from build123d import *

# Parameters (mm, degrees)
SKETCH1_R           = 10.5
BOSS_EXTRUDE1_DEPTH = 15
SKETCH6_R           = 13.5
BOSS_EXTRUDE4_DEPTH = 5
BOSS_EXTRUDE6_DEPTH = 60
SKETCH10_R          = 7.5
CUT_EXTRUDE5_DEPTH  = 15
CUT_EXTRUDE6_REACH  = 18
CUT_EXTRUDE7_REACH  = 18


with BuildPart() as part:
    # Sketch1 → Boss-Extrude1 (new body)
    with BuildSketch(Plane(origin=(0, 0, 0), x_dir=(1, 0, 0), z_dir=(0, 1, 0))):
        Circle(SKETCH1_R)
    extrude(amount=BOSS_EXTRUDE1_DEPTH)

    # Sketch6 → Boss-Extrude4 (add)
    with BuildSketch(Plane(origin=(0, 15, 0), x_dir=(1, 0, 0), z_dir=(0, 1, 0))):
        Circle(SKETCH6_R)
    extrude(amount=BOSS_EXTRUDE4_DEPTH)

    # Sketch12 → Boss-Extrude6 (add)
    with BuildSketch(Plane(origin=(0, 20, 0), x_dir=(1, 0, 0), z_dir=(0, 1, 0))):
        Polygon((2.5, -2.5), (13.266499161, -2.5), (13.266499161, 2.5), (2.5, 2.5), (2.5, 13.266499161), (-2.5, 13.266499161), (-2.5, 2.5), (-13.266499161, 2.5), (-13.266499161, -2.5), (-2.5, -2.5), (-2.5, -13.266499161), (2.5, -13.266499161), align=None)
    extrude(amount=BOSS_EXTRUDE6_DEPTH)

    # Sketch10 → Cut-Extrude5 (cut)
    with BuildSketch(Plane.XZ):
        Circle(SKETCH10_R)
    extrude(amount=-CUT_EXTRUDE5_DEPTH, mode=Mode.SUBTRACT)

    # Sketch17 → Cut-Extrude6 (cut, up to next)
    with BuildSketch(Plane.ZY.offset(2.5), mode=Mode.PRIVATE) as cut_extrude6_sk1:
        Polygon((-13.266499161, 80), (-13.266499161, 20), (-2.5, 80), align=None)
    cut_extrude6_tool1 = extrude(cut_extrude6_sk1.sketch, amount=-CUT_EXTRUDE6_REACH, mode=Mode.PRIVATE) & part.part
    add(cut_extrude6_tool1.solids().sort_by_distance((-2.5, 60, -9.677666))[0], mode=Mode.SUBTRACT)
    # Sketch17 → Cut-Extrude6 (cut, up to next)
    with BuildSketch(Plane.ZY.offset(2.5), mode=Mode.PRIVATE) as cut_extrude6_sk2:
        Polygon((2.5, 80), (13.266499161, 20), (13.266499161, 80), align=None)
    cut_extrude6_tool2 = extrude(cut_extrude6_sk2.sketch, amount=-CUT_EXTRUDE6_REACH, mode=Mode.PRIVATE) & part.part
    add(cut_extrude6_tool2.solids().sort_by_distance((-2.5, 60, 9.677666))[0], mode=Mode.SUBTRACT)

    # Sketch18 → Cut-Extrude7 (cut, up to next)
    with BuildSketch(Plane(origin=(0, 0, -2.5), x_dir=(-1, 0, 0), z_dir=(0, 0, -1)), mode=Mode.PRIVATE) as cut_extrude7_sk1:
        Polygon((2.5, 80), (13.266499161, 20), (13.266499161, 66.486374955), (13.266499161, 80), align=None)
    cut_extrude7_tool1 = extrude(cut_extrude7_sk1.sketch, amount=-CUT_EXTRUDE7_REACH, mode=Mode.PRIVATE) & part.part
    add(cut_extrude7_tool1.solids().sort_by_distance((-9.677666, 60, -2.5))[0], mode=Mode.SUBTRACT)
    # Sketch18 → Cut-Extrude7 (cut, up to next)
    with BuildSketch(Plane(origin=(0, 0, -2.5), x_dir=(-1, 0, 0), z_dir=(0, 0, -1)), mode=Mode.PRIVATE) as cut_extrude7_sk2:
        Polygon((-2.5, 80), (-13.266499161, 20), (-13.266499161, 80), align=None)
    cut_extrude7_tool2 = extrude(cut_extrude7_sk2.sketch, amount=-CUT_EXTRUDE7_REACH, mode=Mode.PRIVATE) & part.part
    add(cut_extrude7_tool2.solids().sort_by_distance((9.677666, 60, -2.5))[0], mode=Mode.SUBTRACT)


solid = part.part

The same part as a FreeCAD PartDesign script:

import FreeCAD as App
import Part
import Sketcher
from FreeCAD import Vector


def add_polygon(sketch, points):
    """Adds a closed chain of lines whose ends are joined by coincident constraints."""
    first, n = sketch.GeometryCount, len(points)
    for a, b in zip(points, points[1:] + points[:1]):
        sketch.addGeometry(Part.LineSegment(App.Vector(*a, 0), App.Vector(*b, 0)), False)
    for i in range(n):
        sketch.addConstraint(Sketcher.Constraint("Coincident", first + i, 2, first + (i + 1) % n, 1))

doc = App.newDocument("Part")
params = doc.addObject("Spreadsheet::Sheet", "Params")
for row, (alias, value) in enumerate([
    ("sketch1_diameter", "21 mm"),
    ("pad1_length", "15 mm"),
    ("sketch2_diameter", "27 mm"),
    ("pad2_length", "5 mm"),
    ("sketch3_width", "5 mm"),
    ("pad3_length", "60 mm"),
    ("sketch4_diameter", "15 mm"),
    ("pocket1_length", "15 mm"),
    ("sketch5_width", "60 mm"),
    ("sketch6_width", "60 mm"),
    ("sketch7_height", "60 mm"),
    ("sketch8_height", "60 mm"),
], start=1):
    params.set(f"A{row}", alias)
    params.set(f"B{row}", "=" + value)
    params.setAlias(f"B{row}", alias)

body = doc.addObject("PartDesign::Body", "Body")

# Sketch on XZ plane
sketch1 = body.newObject("Sketcher::SketchObject", "Sketch")
sketch1.AttachmentSupport = (doc.getObject("XZ_Plane"), [""])
sketch1.MapMode = "FlatFace"
sketch1.addGeometry(Part.Circle(Vector(0, 0, 0), Vector(0, 0, 1), 10.5), False)
sketch1.addConstraint(Sketcher.Constraint("Coincident", 0, 3, -1, 1))
sketch1.addConstraint(Sketcher.Constraint("Diameter", 0, 21.0))
sketch1.setExpression("Constraints[1]", "Params.sketch1_diameter")
pad1 = body.newObject("PartDesign::Pad", "Pad")
pad1.Profile = sketch1
pad1.setExpression("Length", "Params.pad1_length")
pad1.Reversed = True

# Sketch on XZ plane
sketch2 = body.newObject("Sketcher::SketchObject", "Sketch001")
sketch2.AttachmentSupport = (doc.getObject("XZ_Plane"), [""])
sketch2.MapMode = "FlatFace"
sketch2.AttachmentOffset = App.Placement(Vector(0, 0, -15), App.Rotation())
sketch2.addGeometry(Part.Circle(Vector(0, 0, 0), Vector(0, 0, 1), 13.5), False)
sketch2.addConstraint(Sketcher.Constraint("Coincident", 0, 3, -1, 1))
sketch2.addConstraint(Sketcher.Constraint("Diameter", 0, 27.0))
sketch2.setExpression("Constraints[1]", "Params.sketch2_diameter")
pad2 = body.newObject("PartDesign::Pad", "Pad001")
pad2.Profile = sketch2
pad2.setExpression("Length", "Params.pad2_length")
pad2.Reversed = True

# Sketch on XZ plane
sketch3 = body.newObject("Sketcher::SketchObject", "Sketch002")
sketch3.AttachmentSupport = (doc.getObject("XZ_Plane"), [""])
sketch3.MapMode = "FlatFace"
sketch3.AttachmentOffset = App.Placement(Vector(0, 0, -20), App.Rotation())
add_polygon(sketch3, [(2.5, 2.5), (13.266499, 2.5), (13.266499, -2.5), (2.5, -2.5), (2.5, -13.266499), (-2.5, -13.266499), (-2.5, -2.5), (-13.266499, -2.5), (-13.266499, 2.5), (-2.5, 2.5), (-2.5, 13.266499), (2.5, 13.266499)])  # lines 0-11
sketch3.addConstraint(Sketcher.Constraint("Horizontal", 0))
sketch3.addConstraint(Sketcher.Constraint("Vertical", 1))
sketch3.addConstraint(Sketcher.Constraint("Horizontal", 2))
sketch3.addConstraint(Sketcher.Constraint("Vertical", 3))
sketch3.addConstraint(Sketcher.Constraint("Horizontal", 4))
sketch3.addConstraint(Sketcher.Constraint("Vertical", 5))
sketch3.addConstraint(Sketcher.Constraint("Horizontal", 6))
sketch3.addConstraint(Sketcher.Constraint("Vertical", 7))
sketch3.addConstraint(Sketcher.Constraint("Horizontal", 8))
sketch3.addConstraint(Sketcher.Constraint("Vertical", 9))
sketch3.addConstraint(Sketcher.Constraint("Horizontal", 10))
sketch3.addConstraint(Sketcher.Constraint("Vertical", 11))
sketch3.addConstraint(Sketcher.Constraint("Symmetric", 0, 2, 6, 2, -1, 1))
sketch3.addConstraint(Sketcher.Constraint("Symmetric", 2, 2, 8, 2, -1, 1))
sketch3.addConstraint(Sketcher.Constraint("Symmetric", 4, 2, 10, 2, -1, 1))
sketch3.addConstraint(Sketcher.Constraint("Symmetric", 2, 2, 5, 2, -2))
sketch3.addConstraint(Sketcher.Constraint("Equal", 10, 1))
sketch3.addConstraint(Sketcher.Constraint("Equal", 8, 3))
sketch3.addConstraint(Sketcher.Constraint("DistanceX", 4, 2, 4, 1, 5.0))
sketch3.addConstraint(Sketcher.Constraint("DistanceX", 0, 1, 0, 2, 10.766499))
sketch3.setExpression("Constraints[30]", "Params.sketch3_width")
pad3 = body.newObject("PartDesign::Pad", "Pad002")
pad3.Profile = sketch3
pad3.setExpression("Length", "Params.pad3_length")
pad3.Reversed = True

# Sketch on XZ plane
sketch4 = body.newObject("Sketcher::SketchObject", "Sketch003")
sketch4.AttachmentSupport = (doc.getObject("XZ_Plane"), [""])
sketch4.MapMode = "FlatFace"
sketch4.addGeometry(Part.Circle(Vector(0, 0, 0), Vector(0, 0, 1), 7.5), False)
sketch4.addConstraint(Sketcher.Constraint("Coincident", 0, 3, -1, 1))
sketch4.addConstraint(Sketcher.Constraint("Diameter", 0, 15.0))
sketch4.setExpression("Constraints[1]", "Params.sketch4_diameter")
pocket1 = body.newObject("PartDesign::Pocket", "Pocket")
pocket1.Profile = sketch4
pocket1.setExpression("Length", "Params.pocket1_length")

# Sketch on YZ plane
sketch5 = body.newObject("Sketcher::SketchObject", "Sketch004")
sketch5.AttachmentSupport = (doc.getObject("YZ_Plane"), [""])
sketch5.MapMode = "FlatFace"
sketch5.AttachmentOffset = App.Placement(Vector(0, 0, -2.5), App.Rotation())
add_polygon(sketch5, [(80, -13.266499), (20, -13.266499), (80, -2.5)])  # lines 0-2
sketch5.addConstraint(Sketcher.Constraint("Horizontal", 0))
sketch5.addConstraint(Sketcher.Constraint("Vertical", 2))
sketch5.addConstraint(Sketcher.Constraint("DistanceX", 0, 2, 0, 1, 60.0))
sketch5.addConstraint(Sketcher.Constraint("DistanceX", -1, 1, 0, 2, 20.0))
sketch5.addConstraint(Sketcher.Constraint("DistanceY", 1, 2, -1, 1, 2.5))
sketch5.addConstraint(Sketcher.Constraint("DistanceY", 2, 2, 2, 1, 10.766499))
sketch5.setExpression("Constraints[5]", "Params.sketch5_width")
pocket2 = body.newObject("PartDesign::Pocket", "Pocket001")
pocket2.Profile = sketch5
pocket2.Type = "UpToFirst"
pocket2.Reversed = True

# Sketch on YZ plane
sketch6 = body.newObject("Sketcher::SketchObject", "Sketch005")
sketch6.AttachmentSupport = (doc.getObject("YZ_Plane"), [""])
sketch6.MapMode = "FlatFace"
sketch6.AttachmentOffset = App.Placement(Vector(0, 0, -2.5), App.Rotation())
add_polygon(sketch6, [(80, 2.5), (20, 13.266499), (80, 13.266499)])  # lines 0-2
sketch6.addConstraint(Sketcher.Constraint("Horizontal", 1))
sketch6.addConstraint(Sketcher.Constraint("Vertical", 2))
sketch6.addConstraint(Sketcher.Constraint("DistanceX", 1, 1, 1, 2, 60.0))
sketch6.addConstraint(Sketcher.Constraint("DistanceX", -1, 1, 0, 2, 20.0))
sketch6.addConstraint(Sketcher.Constraint("DistanceY", -1, 1, 2, 2, 2.5))
sketch6.addConstraint(Sketcher.Constraint("DistanceY", 2, 2, 2, 1, 10.766499))
sketch6.setExpression("Constraints[5]", "Params.sketch6_width")
pocket3 = body.newObject("PartDesign::Pocket", "Pocket002")
pocket3.Profile = sketch6
pocket3.Type = "UpToFirst"
pocket3.Reversed = True

# Sketch on XY plane
sketch7 = body.newObject("Sketcher::SketchObject", "Sketch006")
sketch7.AttachmentSupport = (doc.getObject("XY_Plane"), [""])
sketch7.MapMode = "FlatFace"
sketch7.AttachmentOffset = App.Placement(Vector(0, 0, -2.5), App.Rotation())
add_polygon(sketch7, [(-2.5, 80), (-13.266499, 20), (-13.266499, 80)])  # lines 0-2
sketch7.addConstraint(Sketcher.Constraint("Vertical", 1))
sketch7.addConstraint(Sketcher.Constraint("Horizontal", 2))
sketch7.addConstraint(Sketcher.Constraint("DistanceY", 1, 1, 1, 2, 60.0))
sketch7.addConstraint(Sketcher.Constraint("DistanceY", -1, 1, 0, 2, 20.0))
sketch7.addConstraint(Sketcher.Constraint("DistanceX", 2, 2, -1, 1, 2.5))
sketch7.addConstraint(Sketcher.Constraint("DistanceX", 2, 1, 2, 2, 10.766499))
sketch7.setExpression("Constraints[5]", "Params.sketch7_height")
pocket4 = body.newObject("PartDesign::Pocket", "Pocket003")
pocket4.Profile = sketch7
pocket4.Type = "UpToFirst"
pocket4.Reversed = True

# Sketch on XY plane
sketch8 = body.newObject("Sketcher::SketchObject", "Sketch007")
sketch8.AttachmentSupport = (doc.getObject("XY_Plane"), [""])
sketch8.MapMode = "FlatFace"
sketch8.AttachmentOffset = App.Placement(Vector(0, 0, -2.5), App.Rotation())
add_polygon(sketch8, [(13.266499, 20), (2.5, 80), (13.266499, 80)])  # lines 0-2
sketch8.addConstraint(Sketcher.Constraint("Horizontal", 1))
sketch8.addConstraint(Sketcher.Constraint("Vertical", 2))
sketch8.addConstraint(Sketcher.Constraint("DistanceY", 2, 2, 2, 1, 60.0))
sketch8.addConstraint(Sketcher.Constraint("DistanceY", -1, 1, 0, 2, 80.0))
sketch8.addConstraint(Sketcher.Constraint("DistanceX", -1, 1, 0, 2, 2.5))
sketch8.addConstraint(Sketcher.Constraint("DistanceX", 1, 1, 1, 2, 10.766499))
sketch8.setExpression("Constraints[5]", "Params.sketch8_height")
pocket5 = body.newObject("PartDesign::Pocket", "Pocket004")
pocket5.Profile = sketch8
pocket5.Type = "UpToFirst"
pocket5.Reversed = True

doc.recompute()
